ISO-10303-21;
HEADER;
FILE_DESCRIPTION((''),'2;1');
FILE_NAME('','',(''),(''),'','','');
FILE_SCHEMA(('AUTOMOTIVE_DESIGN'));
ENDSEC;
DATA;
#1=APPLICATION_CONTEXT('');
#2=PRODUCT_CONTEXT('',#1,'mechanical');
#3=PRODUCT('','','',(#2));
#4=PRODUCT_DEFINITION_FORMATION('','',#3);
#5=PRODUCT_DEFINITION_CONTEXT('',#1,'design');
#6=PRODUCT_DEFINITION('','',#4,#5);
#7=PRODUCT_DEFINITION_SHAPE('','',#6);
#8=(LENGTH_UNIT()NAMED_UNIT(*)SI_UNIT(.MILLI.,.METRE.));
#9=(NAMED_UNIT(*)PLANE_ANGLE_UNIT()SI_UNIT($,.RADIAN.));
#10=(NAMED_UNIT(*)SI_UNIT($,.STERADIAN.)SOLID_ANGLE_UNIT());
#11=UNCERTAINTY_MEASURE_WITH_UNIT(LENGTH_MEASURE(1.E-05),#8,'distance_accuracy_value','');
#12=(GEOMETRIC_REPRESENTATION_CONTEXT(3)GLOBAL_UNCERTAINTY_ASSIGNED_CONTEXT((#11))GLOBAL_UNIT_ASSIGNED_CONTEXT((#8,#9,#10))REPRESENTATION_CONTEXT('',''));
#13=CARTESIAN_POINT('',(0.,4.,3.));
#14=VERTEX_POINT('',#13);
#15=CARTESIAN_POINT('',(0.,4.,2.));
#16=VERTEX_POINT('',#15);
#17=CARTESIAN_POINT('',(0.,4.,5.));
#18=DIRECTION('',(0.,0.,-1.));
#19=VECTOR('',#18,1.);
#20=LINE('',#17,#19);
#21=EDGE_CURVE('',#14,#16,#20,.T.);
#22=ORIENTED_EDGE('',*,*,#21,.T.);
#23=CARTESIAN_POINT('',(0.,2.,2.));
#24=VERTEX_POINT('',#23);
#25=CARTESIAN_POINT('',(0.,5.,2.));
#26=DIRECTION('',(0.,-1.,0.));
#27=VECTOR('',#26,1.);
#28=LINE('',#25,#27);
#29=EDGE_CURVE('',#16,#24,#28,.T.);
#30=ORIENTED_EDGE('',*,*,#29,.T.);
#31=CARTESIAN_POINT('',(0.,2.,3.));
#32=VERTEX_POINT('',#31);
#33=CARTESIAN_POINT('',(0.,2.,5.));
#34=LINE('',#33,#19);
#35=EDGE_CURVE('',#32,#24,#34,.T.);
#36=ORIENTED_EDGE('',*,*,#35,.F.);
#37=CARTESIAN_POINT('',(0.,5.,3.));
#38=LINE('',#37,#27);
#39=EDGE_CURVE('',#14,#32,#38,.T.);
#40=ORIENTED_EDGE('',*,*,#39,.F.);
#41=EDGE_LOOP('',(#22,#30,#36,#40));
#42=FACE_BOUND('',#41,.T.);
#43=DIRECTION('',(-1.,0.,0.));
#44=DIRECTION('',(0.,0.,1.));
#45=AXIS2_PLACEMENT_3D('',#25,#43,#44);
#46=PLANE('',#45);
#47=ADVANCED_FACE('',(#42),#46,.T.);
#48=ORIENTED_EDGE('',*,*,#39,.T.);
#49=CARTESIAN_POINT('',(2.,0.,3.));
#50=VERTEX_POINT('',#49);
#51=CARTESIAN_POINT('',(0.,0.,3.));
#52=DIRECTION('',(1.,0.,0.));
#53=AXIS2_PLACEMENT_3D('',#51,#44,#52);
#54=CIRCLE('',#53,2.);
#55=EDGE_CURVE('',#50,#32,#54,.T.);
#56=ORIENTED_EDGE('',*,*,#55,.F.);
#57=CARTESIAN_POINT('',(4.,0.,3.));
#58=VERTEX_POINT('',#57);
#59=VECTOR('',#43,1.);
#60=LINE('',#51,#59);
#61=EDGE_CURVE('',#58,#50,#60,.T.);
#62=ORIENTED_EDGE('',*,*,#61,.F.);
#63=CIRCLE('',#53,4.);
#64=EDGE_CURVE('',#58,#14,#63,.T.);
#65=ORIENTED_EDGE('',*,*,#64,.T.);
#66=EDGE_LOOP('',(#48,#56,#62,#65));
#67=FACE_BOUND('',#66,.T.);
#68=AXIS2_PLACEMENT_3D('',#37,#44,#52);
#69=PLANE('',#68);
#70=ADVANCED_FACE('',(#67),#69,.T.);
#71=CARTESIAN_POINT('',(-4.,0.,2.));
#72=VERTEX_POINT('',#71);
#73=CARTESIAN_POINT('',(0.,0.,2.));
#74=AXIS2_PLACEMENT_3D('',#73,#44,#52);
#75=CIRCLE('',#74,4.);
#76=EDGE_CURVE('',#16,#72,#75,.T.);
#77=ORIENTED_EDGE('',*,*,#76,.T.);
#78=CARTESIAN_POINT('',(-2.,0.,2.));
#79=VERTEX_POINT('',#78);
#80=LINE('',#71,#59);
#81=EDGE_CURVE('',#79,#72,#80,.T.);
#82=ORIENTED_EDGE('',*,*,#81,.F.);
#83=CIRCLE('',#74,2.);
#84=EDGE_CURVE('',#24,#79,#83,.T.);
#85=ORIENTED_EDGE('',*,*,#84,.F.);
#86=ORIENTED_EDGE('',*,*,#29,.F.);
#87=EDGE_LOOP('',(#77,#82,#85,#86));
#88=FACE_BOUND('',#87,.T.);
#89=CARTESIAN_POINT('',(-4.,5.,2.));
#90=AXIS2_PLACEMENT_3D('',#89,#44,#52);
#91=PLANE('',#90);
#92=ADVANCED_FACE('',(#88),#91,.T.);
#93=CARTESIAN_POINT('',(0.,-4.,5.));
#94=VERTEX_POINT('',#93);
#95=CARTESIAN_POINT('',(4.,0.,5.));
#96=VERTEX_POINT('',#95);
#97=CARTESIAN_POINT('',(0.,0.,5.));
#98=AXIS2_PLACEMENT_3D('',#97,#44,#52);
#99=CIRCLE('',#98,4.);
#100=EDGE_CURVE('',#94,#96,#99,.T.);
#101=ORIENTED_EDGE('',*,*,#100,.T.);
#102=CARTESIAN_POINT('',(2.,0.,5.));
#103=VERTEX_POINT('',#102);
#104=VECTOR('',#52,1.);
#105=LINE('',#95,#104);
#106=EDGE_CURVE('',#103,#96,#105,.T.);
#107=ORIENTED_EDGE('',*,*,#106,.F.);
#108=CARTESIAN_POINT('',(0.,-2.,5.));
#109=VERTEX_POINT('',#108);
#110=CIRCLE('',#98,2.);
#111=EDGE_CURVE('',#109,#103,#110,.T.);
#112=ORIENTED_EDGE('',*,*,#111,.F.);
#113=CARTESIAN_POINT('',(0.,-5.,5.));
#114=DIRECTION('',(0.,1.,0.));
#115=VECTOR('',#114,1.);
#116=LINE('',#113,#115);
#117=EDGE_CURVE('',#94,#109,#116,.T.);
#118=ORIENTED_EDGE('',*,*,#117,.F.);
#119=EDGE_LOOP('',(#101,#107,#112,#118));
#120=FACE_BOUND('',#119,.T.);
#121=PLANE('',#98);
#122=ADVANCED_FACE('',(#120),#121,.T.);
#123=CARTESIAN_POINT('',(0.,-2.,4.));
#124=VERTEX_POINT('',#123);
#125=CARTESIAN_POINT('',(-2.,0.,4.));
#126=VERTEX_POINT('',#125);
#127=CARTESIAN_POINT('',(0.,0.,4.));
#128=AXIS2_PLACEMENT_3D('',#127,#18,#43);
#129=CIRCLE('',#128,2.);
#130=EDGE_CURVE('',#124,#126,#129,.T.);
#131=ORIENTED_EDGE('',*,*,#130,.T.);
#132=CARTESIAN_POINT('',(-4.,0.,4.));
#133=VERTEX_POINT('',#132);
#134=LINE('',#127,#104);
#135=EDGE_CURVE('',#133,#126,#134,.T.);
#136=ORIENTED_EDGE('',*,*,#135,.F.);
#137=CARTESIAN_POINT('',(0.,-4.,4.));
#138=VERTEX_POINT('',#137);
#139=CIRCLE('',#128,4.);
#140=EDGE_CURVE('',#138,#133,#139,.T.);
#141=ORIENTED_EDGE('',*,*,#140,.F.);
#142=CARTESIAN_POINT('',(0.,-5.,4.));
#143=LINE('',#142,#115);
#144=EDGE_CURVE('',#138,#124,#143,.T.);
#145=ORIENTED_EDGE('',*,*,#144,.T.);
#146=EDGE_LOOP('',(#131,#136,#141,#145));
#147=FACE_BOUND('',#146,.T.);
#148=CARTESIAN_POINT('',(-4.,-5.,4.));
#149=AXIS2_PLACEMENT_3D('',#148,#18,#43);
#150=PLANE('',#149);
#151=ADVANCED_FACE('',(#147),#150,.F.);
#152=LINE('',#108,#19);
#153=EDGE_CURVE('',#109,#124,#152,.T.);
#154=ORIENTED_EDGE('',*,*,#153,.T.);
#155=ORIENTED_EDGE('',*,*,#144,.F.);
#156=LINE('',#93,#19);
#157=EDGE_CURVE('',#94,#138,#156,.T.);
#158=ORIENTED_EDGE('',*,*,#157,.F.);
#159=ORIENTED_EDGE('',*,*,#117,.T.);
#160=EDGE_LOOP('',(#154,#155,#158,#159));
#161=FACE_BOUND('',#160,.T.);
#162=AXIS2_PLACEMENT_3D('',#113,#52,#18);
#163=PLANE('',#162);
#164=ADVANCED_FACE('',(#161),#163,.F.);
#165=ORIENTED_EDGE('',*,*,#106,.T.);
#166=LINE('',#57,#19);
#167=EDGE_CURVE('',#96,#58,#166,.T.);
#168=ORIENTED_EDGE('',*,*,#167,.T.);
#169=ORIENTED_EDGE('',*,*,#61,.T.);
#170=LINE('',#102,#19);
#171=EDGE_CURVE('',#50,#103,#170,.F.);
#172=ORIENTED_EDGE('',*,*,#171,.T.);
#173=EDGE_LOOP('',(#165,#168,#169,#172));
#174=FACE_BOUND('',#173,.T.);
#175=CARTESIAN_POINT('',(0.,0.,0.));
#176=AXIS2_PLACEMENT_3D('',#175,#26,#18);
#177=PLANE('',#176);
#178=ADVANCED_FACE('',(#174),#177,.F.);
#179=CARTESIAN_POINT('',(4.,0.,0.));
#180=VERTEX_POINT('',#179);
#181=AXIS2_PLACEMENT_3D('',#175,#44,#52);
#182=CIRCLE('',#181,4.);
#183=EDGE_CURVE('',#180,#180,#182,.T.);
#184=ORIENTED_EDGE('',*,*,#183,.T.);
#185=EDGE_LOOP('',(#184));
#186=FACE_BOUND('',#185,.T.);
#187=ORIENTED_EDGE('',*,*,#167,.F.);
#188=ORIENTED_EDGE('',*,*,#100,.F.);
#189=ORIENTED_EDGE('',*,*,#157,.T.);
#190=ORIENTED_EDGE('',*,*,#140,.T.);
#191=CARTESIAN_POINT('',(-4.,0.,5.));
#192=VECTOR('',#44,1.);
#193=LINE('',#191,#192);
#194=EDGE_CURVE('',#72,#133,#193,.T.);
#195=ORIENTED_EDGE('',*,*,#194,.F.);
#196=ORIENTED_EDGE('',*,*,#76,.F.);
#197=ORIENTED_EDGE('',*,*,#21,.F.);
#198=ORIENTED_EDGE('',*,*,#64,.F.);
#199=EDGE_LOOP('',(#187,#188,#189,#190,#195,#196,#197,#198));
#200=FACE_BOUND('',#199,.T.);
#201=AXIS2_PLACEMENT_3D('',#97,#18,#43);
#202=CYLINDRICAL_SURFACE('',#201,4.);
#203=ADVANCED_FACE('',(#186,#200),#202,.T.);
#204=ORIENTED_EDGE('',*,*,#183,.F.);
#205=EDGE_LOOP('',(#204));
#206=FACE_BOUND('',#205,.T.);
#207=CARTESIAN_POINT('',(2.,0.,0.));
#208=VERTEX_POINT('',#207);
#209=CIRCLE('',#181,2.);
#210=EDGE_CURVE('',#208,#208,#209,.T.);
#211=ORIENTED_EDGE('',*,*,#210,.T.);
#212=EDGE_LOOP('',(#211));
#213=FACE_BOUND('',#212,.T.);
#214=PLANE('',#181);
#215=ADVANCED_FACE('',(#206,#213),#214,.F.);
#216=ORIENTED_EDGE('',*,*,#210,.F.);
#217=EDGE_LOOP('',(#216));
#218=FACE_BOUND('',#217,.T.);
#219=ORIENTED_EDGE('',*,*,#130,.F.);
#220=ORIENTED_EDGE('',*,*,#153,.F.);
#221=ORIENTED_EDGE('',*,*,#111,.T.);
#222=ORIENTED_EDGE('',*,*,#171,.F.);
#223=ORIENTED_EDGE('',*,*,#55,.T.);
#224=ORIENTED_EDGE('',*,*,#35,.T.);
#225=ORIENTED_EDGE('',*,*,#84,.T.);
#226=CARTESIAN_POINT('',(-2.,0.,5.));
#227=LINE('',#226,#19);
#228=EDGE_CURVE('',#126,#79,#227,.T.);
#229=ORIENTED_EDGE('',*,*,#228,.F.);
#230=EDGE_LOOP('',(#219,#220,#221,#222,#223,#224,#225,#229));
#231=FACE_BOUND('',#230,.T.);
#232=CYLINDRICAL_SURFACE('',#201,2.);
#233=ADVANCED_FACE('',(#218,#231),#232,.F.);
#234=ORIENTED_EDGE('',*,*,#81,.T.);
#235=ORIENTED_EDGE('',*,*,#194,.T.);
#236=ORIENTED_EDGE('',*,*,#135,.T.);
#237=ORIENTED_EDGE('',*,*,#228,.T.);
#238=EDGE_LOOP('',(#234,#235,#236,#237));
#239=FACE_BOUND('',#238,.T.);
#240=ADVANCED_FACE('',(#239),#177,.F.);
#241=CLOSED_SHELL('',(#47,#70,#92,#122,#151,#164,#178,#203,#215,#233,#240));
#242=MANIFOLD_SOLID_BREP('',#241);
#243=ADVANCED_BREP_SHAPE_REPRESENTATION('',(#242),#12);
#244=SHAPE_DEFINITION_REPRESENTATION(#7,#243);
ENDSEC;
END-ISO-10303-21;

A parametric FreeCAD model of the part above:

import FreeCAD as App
import Part
import Sketcher
Q = App.Units.Quantity

doc = App.newDocument("Part")
body = doc.addObject("PartDesign::Body", "Body")

# Sketch on XY plane
sketch1 = body.newObject("Sketcher::SketchObject", "Sketch")
sketch1.AttachmentSupport = (doc.getObject("XY_Plane"), [""])
sketch1.MapMode = "FlatFace"
sketch1.addGeometry(Part.Circle(App.Vector(0, 0, 0), App.Vector(0, 0, 1), 4), False)
sketch1.addGeometry(Part.Circle(App.Vector(0, 0, 0), App.Vector(0, 0, 1), 2), False)
sketch1.addConstraint(Sketcher.Constraint("Coincident", 0, 3, -1, 1))
sketch1.addConstraint(Sketcher.Constraint("Coincident", 1, 3, -1, 1))
sketch1.addConstraint(Sketcher.Constraint("Diameter", 0, Q("8 mm")))
sketch1.addConstraint(Sketcher.Constraint("Diameter", 1, Q("4 mm")))
pad1 = body.newObject("PartDesign::Pad", "Pad")
pad1.Profile = sketch1
pad1.Length = 5

# Sketch on XZ plane
sketch2 = body.newObject("Sketcher::SketchObject", "Sketch001")
sketch2.AttachmentSupport = (doc.getObject("XZ_Plane"), [""])
sketch2.MapMode = "FlatFace"
sketch2.addGeometry(Part.LineSegment(App.Vector(0, 2, 0), App.Vector(-4, 2, 0)), False)
sketch2.addGeometry(Part.LineSegment(App.Vector(-4, 2, 0), App.Vector(-4, 5, 0)), False)
sketch2.addGeometry(Part.LineSegment(App.Vector(-4, 5, 0), App.Vector(4, 5, 0)), False)
sketch2.addGeometry(Part.LineSegment(App.Vector(4, 5, 0), App.Vector(4, 3, 0)), False)
sketch2.addGeometry(Part.LineSegment(App.Vector(4, 3, 0), App.Vector(0, 3, 0)), False)
sketch2.addGeometry(Part.LineSegment(App.Vector(0, 3, 0), App.Vector(0, 2, 0)), False)
sketch2.addConstraint(Sketcher.Constraint("Coincident", 0, 2, 1, 1))
sketch2.addConstraint(Sketcher.Constraint("Coincident", 1, 2, 2, 1))
sketch2.addConstraint(Sketcher.Constraint("Coincident", 2, 2, 3, 1))
sketch2.addConstraint(Sketcher.Constraint("Coincident", 3, 2, 4, 1))
sketch2.addConstraint(Sketcher.Constraint("Coincident", 4, 2, 5, 1))
sketch2.addConstraint(Sketcher.Constraint("Coincident", 5, 2, 0, 1))
sketch2.addConstraint(Sketcher.Constraint("Horizontal", 0))
sketch2.addConstraint(Sketcher.Constraint("Vertical", 1))
sketch2.addConstraint(Sketcher.Constraint("Horizontal", 2))
sketch2.addConstraint(Sketcher.Constraint("Vertical", 3))
sketch2.addConstraint(Sketcher.Constraint("Horizontal", 4))
sketch2.addConstraint(Sketcher.Constraint("Vertical", 5))
sketch2.addConstraint(Sketcher.Constraint("PointOnObject", 4, 2, -2))
sketch2.addConstraint(Sketcher.Constraint("Equal", 0, 4))
sketch2.addConstraint(Sketcher.Constraint("DistanceX", 0, 2, 0, 1, Q("4 mm")))
sketch2.addConstraint(Sketcher.Constraint("DistanceY", 1, 1, 1, 2, Q("3 mm")))
sketch2.addConstraint(Sketcher.Constraint("DistanceY", 3, 2, 3, 1, Q("2 mm")))
sketch2.addConstraint(Sketcher.Constraint("DistanceY", -1, 1, 0, 2, Q("2 mm")))
pocket1 = body.newObject("PartDesign::Pocket", "Pocket")
pocket1.Profile = sketch2
pocket1.Length = 5

# Sketch on XZ plane
sketch3 = body.newObject("Sketcher::SketchObject", "Sketch002")
sketch3.AttachmentSupport = (doc.getObject("XZ_Plane"), [""])
sketch3.MapMode = "FlatFace"
sketch3.addGeometry(Part.LineSegment(App.Vector(-4, 4, 0), App.Vector(-4, 5, 0)), False)
sketch3.addGeometry(Part.LineSegment(App.Vector(-4, 5, 0), App.Vector(0, 5, 0)), False)
sketch3.addGeometry(Part.LineSegment(App.Vector(0, 5, 0), App.Vector(0, 4, 0)), False)
sketch3.addGeometry(Part.LineSegment(App.Vector(0, 4, 0), App.Vector(-4, 4, 0)), False)
sketch3.addConstraint(Sketcher.Constraint("Coincident", 0, 2, 1, 1))
sketch3.addConstraint(Sketcher.Constraint("Coincident", 1, 2, 2, 1))
sketch3.addConstraint(Sketcher.Constraint("Coincident", 2, 2, 3, 1))
sketch3.addConstraint(Sketcher.Constraint("Coincident", 3, 2, 0, 1))
sketch3.addConstraint(Sketcher.Constraint("Vertical", 0))
sketch3.addConstraint(Sketcher.Constraint("Horizontal", 1))
sketch3.addConstraint(Sketcher.Constraint("Vertical", 2))
sketch3.addConstraint(Sketcher.Constraint("Horizontal", 3))
sketch3.addConstraint(Sketcher.Constraint("PointOnObject", 1, 2, -2))
sketch3.addConstraint(Sketcher.Constraint("DistanceX", 1, 1, 1, 2, Q("4 mm")))
sketch3.addConstraint(Sketcher.Constraint("DistanceY", 0, 1, 0, 2, Q("1 mm")))
sketch3.addConstraint(Sketcher.Constraint("DistanceY", -1, 1, 0, 2, Q("5 mm")))
pocket2 = body.newObject("PartDesign::Pocket", "Pocket001")
pocket2.Profile = sketch3
pocket2.Length = 5
pocket2.Reversed = True

doc.recompute()
